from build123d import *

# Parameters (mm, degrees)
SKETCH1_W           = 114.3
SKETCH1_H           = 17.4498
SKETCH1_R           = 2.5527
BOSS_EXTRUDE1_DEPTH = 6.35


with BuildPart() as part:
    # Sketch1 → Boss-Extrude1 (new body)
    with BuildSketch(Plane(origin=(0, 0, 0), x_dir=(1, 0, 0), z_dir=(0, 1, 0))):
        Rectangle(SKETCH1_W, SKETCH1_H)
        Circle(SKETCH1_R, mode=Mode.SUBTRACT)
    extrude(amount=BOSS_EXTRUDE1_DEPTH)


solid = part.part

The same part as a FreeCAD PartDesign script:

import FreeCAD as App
import Part
import Sketcher

V = App.Vector
Q = App.Units.Quantity


def add_polygon(sketch, points):
    """Adds a closed chain of lines whose ends are joined by coincident constraints."""
    first, n = sketch.GeometryCount, len(points)
    for a, b in zip(points, points[1:] + points[:1]):
        sketch.addGeometry(Part.LineSegment(App.Vector(*a, 0), App.Vector(*b, 0)), False)
    for i in range(n):
        sketch.addConstraint(Sketcher.Constraint("Coincident", first + i, 2, first + (i + 1) % n, 1))

doc = App.newDocument("Part")
body = doc.addObject("PartDesign::Body", "Body")

sketch1 = body.newObject("Sketcher::SketchObject", "Sketch")
sketch1.AttachmentSupport = (doc.getObject("XZ_Plane"), [""])
sketch1.MapMode = "FlatFace"
add_polygon(sketch1, [(-57.15, -8.7249), (-57.15, 8.7249), (57.15, 8.7249), (57.15, -8.7249)])
sketch1.addGeometry(Part.Circle(V(0, 0, 0), V(0, 0, 1), 2.5527), False)
sketch1.addConstraint(Sketcher.Constraint("Vertical", 0))
sketch1.addConstraint(Sketcher.Constraint("Horizontal", 1))
sketch1.addConstraint(Sketcher.Constraint("Vertical", 2))
sketch1.addConstraint(Sketcher.Constraint("Horizontal", 3))
sketch1.addConstraint(Sketcher.Constraint("Coincident", 4, 3, -1, 1))
sketch1.addConstraint(Sketcher.Constraint("Symmetric", 0, 2, 2, 2, -1, 1))
sketch1.addConstraint(Sketcher.Constraint("Diameter", 4, Q("0.201 in")))
sketch1.addConstraint(Sketcher.Constraint("DistanceX", 1, 1, 1, 2, Q("4.5 in")))
sketch1.addConstraint(Sketcher.Constraint("DistanceY", 0, 1, 0, 2, Q("0.687 in")))
pad1 = body.newObject("PartDesign::Pad", "Pad")
pad1.Profile = sketch1
pad1.Length = Q("0.25 in")
pad1.Reversed = True

doc.recompute()
